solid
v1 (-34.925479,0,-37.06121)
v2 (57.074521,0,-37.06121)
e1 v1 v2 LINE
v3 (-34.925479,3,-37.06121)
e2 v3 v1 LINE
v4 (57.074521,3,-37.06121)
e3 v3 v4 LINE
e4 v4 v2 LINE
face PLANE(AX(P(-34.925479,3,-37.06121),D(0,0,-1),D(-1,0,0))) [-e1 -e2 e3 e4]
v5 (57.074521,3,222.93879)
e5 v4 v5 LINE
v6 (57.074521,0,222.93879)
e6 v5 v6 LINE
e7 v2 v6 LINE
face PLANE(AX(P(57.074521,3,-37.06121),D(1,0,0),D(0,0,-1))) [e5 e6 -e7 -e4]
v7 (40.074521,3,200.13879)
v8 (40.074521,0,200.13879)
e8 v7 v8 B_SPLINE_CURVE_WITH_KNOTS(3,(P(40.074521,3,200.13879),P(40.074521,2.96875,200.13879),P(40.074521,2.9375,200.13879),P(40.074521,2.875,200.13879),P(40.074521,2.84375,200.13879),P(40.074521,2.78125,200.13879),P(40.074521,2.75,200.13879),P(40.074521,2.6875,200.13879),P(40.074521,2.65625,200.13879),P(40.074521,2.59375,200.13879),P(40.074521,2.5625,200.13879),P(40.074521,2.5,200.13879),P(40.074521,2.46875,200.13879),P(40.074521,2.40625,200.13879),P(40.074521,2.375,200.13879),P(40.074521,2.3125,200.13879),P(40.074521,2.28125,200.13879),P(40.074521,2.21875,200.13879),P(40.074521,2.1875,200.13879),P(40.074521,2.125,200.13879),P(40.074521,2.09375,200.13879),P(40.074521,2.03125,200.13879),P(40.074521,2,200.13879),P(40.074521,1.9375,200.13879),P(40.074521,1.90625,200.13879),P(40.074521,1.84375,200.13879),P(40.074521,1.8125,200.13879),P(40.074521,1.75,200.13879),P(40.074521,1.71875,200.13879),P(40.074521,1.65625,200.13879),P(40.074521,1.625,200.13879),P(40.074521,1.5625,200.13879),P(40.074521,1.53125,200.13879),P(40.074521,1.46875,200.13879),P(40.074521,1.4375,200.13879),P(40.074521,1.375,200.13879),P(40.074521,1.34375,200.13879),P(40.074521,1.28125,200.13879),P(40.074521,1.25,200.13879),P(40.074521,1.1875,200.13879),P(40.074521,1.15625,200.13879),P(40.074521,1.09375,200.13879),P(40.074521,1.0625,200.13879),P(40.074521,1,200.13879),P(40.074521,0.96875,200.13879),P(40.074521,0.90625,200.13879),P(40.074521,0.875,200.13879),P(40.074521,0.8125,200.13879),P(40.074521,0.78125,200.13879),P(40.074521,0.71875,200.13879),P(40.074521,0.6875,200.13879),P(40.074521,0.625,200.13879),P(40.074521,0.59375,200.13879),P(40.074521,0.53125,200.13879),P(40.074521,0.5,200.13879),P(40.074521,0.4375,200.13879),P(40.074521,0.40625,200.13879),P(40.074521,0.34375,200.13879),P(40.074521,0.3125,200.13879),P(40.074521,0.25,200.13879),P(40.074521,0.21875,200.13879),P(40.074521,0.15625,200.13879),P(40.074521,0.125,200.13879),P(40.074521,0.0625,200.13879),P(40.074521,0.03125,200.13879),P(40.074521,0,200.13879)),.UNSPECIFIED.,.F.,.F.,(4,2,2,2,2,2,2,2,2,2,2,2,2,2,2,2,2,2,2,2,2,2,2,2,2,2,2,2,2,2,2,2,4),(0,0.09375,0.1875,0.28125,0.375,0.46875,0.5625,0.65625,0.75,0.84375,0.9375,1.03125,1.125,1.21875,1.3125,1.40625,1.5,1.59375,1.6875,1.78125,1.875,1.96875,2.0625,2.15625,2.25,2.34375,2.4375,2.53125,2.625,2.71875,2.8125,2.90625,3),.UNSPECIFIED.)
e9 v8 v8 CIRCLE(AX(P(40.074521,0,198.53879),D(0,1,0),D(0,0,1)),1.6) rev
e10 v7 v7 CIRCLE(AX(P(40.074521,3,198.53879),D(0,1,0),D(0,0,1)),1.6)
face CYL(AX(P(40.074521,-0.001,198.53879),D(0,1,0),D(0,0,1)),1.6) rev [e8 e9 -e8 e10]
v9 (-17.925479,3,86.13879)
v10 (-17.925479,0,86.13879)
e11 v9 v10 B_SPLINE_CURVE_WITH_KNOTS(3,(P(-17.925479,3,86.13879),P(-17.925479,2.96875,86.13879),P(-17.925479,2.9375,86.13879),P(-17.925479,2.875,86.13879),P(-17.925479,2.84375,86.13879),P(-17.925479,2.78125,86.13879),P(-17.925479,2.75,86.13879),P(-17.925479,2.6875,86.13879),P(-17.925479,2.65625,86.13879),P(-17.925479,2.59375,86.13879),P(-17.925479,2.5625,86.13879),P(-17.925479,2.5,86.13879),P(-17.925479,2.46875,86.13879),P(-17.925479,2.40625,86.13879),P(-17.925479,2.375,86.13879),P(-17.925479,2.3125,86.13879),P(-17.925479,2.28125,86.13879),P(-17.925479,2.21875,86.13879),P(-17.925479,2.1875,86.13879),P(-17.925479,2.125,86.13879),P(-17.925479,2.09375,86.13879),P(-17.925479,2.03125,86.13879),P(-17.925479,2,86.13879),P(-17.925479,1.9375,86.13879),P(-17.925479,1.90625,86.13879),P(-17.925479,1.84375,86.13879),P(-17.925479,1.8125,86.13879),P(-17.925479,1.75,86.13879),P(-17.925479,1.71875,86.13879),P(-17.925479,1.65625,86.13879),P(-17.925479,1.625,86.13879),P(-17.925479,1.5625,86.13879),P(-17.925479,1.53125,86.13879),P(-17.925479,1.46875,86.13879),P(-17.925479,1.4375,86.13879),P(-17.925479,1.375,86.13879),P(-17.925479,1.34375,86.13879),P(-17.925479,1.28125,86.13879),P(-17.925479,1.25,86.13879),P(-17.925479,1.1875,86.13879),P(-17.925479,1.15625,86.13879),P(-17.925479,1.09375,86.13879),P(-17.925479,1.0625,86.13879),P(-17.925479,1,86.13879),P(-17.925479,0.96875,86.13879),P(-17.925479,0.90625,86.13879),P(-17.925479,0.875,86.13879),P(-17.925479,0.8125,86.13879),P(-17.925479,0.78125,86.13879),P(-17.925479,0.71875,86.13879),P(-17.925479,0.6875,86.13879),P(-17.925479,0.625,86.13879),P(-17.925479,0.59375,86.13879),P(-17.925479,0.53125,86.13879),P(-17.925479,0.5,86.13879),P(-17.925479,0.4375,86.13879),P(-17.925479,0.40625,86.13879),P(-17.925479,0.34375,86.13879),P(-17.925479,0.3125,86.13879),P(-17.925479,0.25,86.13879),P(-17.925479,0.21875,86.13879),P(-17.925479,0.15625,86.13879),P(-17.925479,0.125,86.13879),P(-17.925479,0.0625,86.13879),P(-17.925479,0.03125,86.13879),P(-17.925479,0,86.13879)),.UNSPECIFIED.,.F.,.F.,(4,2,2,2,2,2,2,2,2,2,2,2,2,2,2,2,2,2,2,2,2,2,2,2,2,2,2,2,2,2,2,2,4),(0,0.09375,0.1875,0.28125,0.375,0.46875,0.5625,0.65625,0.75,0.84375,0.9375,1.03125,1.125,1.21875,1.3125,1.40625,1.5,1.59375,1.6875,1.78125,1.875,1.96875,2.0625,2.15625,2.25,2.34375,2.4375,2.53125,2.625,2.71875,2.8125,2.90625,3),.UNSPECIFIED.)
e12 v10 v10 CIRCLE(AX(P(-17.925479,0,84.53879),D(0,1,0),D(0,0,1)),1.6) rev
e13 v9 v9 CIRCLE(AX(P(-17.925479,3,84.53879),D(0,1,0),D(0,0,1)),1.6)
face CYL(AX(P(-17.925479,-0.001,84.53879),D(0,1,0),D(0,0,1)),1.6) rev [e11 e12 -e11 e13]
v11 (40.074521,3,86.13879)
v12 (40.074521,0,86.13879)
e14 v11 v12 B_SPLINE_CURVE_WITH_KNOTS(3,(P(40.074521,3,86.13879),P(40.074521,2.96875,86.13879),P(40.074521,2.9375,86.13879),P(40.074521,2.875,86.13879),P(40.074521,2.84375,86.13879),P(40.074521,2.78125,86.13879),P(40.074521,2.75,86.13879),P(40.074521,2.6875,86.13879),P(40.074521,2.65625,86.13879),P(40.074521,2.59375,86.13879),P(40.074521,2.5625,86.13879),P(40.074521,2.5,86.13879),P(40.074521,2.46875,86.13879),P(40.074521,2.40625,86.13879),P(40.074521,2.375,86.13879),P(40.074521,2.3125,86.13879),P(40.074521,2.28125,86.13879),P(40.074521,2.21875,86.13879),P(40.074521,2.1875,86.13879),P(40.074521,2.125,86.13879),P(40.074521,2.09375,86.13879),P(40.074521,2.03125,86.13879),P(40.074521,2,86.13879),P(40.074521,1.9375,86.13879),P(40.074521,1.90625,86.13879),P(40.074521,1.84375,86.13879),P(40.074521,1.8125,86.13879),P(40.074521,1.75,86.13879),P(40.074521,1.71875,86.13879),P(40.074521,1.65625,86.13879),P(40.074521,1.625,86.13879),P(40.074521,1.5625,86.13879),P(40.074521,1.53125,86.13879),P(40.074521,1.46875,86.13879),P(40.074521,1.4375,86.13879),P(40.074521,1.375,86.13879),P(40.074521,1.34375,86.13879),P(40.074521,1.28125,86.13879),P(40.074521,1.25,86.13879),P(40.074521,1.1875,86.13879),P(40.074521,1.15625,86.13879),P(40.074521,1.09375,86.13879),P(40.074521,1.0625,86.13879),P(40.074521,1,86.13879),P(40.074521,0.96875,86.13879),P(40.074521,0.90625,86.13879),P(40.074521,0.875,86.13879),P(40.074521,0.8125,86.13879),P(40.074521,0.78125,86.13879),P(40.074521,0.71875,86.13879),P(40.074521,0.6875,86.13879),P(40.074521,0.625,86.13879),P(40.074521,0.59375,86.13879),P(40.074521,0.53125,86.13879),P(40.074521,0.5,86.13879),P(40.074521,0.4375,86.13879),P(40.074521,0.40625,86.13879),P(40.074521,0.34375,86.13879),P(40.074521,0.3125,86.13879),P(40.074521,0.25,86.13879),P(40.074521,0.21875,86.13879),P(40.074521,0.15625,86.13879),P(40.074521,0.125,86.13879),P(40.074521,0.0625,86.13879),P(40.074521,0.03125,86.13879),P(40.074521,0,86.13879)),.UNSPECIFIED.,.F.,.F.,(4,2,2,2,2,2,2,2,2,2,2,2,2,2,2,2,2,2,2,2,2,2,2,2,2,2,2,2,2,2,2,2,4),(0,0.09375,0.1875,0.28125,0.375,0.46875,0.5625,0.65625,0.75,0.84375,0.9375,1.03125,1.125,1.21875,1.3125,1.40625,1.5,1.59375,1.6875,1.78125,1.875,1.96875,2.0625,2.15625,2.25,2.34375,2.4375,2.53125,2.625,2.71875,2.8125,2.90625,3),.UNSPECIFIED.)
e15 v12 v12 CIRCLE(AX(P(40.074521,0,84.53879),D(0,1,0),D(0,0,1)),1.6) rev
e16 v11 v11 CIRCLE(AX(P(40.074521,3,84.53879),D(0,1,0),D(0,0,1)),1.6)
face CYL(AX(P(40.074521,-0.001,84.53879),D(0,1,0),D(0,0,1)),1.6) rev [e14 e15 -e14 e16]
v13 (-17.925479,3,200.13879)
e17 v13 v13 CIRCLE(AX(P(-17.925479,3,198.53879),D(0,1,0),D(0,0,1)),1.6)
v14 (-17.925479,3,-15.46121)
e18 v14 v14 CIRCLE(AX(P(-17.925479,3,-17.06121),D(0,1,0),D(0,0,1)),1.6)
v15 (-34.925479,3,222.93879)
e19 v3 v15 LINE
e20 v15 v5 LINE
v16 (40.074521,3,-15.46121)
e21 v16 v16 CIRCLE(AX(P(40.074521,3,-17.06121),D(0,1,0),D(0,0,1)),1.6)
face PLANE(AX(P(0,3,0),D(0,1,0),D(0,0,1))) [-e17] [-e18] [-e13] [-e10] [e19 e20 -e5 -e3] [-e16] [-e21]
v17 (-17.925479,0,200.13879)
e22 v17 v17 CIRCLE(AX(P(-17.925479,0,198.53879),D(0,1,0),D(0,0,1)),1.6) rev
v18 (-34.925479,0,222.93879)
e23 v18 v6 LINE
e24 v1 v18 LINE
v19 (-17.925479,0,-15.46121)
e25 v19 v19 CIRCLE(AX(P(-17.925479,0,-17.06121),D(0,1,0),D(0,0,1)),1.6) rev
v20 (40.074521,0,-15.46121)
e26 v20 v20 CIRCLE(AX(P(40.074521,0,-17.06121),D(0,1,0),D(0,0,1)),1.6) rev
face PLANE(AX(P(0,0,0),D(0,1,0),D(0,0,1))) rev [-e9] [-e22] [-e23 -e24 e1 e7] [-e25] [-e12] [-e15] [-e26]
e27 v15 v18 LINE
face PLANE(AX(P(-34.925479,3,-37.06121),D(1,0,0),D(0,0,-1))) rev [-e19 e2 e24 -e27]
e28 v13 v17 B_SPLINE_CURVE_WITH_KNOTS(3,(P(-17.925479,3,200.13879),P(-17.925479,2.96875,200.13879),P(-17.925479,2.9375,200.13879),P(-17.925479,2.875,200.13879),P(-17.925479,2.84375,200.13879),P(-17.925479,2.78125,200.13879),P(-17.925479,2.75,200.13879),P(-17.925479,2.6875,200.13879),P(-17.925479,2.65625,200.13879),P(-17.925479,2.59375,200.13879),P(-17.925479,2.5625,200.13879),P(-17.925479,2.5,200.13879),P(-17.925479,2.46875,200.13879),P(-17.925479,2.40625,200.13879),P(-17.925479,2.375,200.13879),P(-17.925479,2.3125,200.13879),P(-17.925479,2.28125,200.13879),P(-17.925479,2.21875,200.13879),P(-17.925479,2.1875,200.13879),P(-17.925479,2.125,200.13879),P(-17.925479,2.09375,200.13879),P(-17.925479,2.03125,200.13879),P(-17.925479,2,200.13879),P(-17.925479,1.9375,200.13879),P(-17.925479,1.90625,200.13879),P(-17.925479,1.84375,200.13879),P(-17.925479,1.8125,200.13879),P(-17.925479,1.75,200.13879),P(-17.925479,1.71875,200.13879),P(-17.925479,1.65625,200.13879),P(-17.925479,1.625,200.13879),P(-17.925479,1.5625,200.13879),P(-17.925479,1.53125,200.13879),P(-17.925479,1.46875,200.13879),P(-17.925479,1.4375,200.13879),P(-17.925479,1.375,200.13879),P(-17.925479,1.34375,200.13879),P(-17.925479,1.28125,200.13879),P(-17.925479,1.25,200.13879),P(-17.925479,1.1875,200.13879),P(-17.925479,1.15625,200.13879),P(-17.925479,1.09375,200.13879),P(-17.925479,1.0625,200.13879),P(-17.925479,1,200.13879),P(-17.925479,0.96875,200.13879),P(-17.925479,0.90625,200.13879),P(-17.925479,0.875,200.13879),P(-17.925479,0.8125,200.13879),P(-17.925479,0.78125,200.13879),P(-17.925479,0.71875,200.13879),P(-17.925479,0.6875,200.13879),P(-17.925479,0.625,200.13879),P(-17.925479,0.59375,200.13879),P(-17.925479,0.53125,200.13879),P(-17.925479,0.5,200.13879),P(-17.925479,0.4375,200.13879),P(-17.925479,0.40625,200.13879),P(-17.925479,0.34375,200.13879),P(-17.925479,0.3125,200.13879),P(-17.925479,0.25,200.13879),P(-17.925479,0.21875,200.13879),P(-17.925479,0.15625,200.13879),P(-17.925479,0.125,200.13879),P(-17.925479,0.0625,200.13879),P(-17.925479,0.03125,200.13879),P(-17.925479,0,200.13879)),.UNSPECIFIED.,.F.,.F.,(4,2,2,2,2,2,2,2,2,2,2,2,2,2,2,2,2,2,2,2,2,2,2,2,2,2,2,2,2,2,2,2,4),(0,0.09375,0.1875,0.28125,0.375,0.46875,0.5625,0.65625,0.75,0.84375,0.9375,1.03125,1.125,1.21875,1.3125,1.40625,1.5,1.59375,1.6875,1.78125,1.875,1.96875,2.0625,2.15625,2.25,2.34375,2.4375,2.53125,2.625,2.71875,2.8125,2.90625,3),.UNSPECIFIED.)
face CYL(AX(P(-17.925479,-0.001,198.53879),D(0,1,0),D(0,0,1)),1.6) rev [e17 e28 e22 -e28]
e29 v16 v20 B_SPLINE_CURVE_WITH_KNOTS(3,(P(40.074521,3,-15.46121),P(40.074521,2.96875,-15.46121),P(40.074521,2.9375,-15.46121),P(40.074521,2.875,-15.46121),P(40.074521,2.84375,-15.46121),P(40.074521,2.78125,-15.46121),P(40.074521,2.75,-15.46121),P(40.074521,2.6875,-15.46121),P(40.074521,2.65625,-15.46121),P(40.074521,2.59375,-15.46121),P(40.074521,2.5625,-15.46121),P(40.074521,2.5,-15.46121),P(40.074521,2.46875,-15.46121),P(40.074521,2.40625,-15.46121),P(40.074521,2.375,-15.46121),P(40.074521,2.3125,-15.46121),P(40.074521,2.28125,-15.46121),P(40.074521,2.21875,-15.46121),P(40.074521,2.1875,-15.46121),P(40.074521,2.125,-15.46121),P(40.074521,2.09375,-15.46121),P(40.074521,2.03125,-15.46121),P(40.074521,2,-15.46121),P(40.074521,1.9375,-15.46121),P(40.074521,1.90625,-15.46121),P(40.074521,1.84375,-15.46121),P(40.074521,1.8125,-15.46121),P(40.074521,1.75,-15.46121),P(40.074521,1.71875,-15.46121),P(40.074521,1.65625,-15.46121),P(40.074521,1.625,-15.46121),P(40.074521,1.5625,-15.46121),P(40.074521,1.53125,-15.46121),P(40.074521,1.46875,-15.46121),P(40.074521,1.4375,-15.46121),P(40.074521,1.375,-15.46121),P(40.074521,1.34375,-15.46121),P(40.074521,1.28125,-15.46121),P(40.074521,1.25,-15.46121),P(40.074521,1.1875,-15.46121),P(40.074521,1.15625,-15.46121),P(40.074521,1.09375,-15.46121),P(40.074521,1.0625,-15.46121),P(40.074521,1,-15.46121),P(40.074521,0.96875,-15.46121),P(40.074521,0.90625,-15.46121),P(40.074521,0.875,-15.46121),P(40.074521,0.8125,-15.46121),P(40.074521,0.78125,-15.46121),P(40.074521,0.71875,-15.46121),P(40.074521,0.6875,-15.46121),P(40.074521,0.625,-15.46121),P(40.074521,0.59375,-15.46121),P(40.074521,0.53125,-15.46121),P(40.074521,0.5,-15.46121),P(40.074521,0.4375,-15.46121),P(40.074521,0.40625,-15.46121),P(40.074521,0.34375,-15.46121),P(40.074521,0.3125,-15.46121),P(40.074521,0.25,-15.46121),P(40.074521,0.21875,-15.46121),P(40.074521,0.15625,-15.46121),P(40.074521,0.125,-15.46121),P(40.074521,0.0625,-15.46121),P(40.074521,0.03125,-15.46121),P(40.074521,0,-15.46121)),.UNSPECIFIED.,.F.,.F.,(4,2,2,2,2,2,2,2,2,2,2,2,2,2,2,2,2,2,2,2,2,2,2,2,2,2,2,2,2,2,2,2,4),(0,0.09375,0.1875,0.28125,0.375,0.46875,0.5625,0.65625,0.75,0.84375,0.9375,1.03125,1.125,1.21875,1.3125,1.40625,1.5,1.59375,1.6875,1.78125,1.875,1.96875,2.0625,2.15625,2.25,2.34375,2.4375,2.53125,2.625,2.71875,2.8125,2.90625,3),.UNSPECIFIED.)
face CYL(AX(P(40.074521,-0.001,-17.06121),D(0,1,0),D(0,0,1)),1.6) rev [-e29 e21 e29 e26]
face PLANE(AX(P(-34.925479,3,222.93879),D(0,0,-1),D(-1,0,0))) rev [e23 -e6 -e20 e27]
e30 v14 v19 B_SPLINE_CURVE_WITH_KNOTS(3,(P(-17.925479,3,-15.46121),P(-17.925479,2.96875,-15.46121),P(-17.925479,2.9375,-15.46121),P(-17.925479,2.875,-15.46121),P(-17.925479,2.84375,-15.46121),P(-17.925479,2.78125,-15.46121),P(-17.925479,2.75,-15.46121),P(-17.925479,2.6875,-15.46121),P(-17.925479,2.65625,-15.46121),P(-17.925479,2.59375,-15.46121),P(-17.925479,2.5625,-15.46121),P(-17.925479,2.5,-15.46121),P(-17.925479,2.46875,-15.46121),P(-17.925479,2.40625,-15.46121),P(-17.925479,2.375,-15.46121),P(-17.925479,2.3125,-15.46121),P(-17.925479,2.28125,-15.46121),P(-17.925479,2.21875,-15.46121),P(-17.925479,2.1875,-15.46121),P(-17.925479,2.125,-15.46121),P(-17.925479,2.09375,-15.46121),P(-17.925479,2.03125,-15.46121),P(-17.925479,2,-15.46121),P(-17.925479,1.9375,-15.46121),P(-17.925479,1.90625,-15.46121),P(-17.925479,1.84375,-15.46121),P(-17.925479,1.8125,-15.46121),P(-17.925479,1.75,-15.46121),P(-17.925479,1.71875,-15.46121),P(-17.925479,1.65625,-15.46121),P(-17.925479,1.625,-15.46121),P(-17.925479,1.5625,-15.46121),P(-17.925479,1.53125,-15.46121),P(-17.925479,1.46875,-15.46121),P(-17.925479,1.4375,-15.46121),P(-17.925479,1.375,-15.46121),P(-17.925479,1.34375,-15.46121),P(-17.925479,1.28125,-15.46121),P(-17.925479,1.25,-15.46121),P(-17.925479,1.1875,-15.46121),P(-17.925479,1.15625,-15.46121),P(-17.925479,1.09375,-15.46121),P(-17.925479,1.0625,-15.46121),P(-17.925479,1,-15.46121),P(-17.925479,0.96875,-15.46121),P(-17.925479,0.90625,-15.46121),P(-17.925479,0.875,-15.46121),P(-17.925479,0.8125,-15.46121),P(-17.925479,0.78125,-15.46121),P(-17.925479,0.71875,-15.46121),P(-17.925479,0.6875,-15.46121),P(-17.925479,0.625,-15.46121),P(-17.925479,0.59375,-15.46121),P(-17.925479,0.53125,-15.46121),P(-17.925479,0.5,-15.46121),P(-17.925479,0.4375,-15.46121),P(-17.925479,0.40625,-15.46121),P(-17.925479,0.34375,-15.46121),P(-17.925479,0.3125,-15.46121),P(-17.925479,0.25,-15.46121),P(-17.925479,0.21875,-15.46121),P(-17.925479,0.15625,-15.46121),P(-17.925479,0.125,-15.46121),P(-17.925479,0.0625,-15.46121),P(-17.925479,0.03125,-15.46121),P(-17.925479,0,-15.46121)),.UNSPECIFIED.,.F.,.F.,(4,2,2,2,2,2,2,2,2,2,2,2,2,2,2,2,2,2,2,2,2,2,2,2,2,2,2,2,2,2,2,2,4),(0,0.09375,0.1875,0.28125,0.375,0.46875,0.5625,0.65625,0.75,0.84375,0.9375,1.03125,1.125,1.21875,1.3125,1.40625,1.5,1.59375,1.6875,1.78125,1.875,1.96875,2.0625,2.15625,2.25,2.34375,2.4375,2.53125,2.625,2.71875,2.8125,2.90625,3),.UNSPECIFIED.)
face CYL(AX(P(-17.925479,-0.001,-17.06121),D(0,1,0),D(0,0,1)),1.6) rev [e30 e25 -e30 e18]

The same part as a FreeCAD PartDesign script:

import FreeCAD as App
import Part
import Sketcher
from FreeCAD import Vector


def add_polygon(sketch, points):
    """Adds a closed chain of lines whose ends are joined by coincident constraints."""
    first, n = sketch.GeometryCount, len(points)
    for a, b in zip(points, points[1:] + points[:1]):
        sketch.addGeometry(Part.LineSegment(App.Vector(*a, 0), App.Vector(*b, 0)), False)
    for i in range(n):
        sketch.addConstraint(Sketcher.Constraint("Coincident", first + i, 2, first + (i + 1) % n, 1))

doc = App.newDocument("Part")
params = doc.addObject("Spreadsheet::Sheet", "Params")
for row, (alias, value) in enumerate([
    ("sketch1_width", "92 mm"),
    ("sketch1_height", "260 mm"),
    ("pad1_length", "3 mm"),
    ("sketch2_diameter", "3.2 mm"),
    ("sketch3_diameter", "3.2 mm"),
    ("sketch4_diameter", "3.2 mm"),
    ("sketch5_diameter", "3.2 mm"),
    ("sketch6_diameter", "3.2 mm"),
    ("sketch7_diameter", "3.2 mm"),
], start=1):
    params.set(f"A{row}", alias)
    params.set(f"B{row}", "=" + value)
    params.setAlias(f"B{row}", alias)

body = doc.addObject("PartDesign::Body", "Body")

# Sketch on XZ plane
sketch1 = doc.addObject("Sketcher::SketchObject", "Sketch")
body.addObject(sketch1)
sketch1.AttachmentSupport = (doc.XZ_Plane, [""])
sketch1.MapMode = "FlatFace"
add_polygon(sketch1, [(-34.925479, -37.06121), (-34.925479, 222.93879), (57.074521, 222.93879), (57.074521, -37.06121)])  # lines 0-3
sketch1.addConstraint([
    Sketcher.Constraint("Vertical", 0),
    Sketcher.Constraint("Horizontal", 1),
    Sketcher.Constraint("Vertical", 2),
    Sketcher.Constraint("Horizontal", 3),
    Sketcher.Constraint("DistanceX", 1, 1, 1, 2, 92.0),
    Sketcher.Constraint("DistanceY", 0, 1, 0, 2, 260.0),
    Sketcher.Constraint("DistanceX", 0, 2, -1, 1, 34.925479),
    Sketcher.Constraint("DistanceY", -1, 1, 0, 2, 222.93879),
])
sketch1.setExpression("Constraints[8]", "Params.sketch1_width")
sketch1.setExpression("Constraints[9]", "Params.sketch1_height")
pad1 = doc.addObject("PartDesign::Pad", "Pad")
body.addObject(pad1)
pad1.Profile = sketch1
pad1.setExpression("Length", "Params.pad1_length")
pad1.Reversed = True

# Sketch on XZ plane
sketch2 = doc.addObject("Sketcher::SketchObject", "Sketch001")
body.addObject(sketch2)
sketch2.AttachmentSupport = (doc.XZ_Plane, [""])
sketch2.MapMode = "FlatFace"
sketch2.AttachmentOffset = App.Placement(Vector(0, 0, -3), App.Rotation())
sketch2.addGeometry(Part.Circle(Vector(-17.925479, 198.53879, 0), Vector(0, 0, 1), 1.6), False)
sketch2.addConstraint([
    Sketcher.Constraint("Diameter", 0, 3.2),
    Sketcher.Constraint("DistanceX", 0, 3, -1, 1, 17.925479),
    Sketcher.Constraint("DistanceY", -1, 1, 0, 3, 198.53879),
])
sketch2.setExpression("Constraints[0]", "Params.sketch2_diameter")
pocket1 = doc.addObject("PartDesign::Pocket", "Pocket")
body.addObject(pocket1)
pocket1.Profile = sketch2
pocket1.Type = "UpToFirst"
pocket1.Reversed = True

# Sketch on XZ plane
sketch3 = doc.addObject("Sketcher::SketchObject", "Sketch002")
body.addObject(sketch3)
sketch3.AttachmentSupport = (doc.XZ_Plane, [""])
sketch3.MapMode = "FlatFace"
sketch3.AttachmentOffset = App.Placement(Vector(0, 0, -3), App.Rotation())
sketch3.addGeometry(Part.Circle(Vector(40.074521, 198.53879, 0), Vector(0, 0, 1), 1.6), False)
sketch3.addConstraint([
    Sketcher.Constraint("Diameter", 0, 3.2),
    Sketcher.Constraint("DistanceX", -1, 1, 0, 3, 40.074521),
    Sketcher.Constraint("DistanceY", -1, 1, 0, 3, 198.53879),
])
sketch3.setExpression("Constraints[0]", "Params.sketch3_diameter")
pocket2 = doc.addObject("PartDesign::Pocket", "Pocket001")
body.addObject(pocket2)
pocket2.Profile = sketch3
pocket2.Type = "UpToFirst"
pocket2.Reversed = True

# Sketch on XZ plane
sketch4 = doc.addObject("Sketcher::SketchObject", "Sketch003")
body.addObject(sketch4)
sketch4.AttachmentSupport = (doc.XZ_Plane, [""])
sketch4.MapMode = "FlatFace"
sketch4.AttachmentOffset = App.Placement(Vector(0, 0, -3), App.Rotation())
sketch4.addGeometry(Part.Circle(Vector(-17.925479, 84.53879, 0), Vector(0, 0, 1), 1.6), False)
sketch4.addConstraint([
    Sketcher.Constraint("Diameter", 0, 3.2),
    Sketcher.Constraint("DistanceX", 0, 3, -1, 1, 17.925479),
    Sketcher.Constraint("DistanceY", -1, 1, 0, 3, 84.53879),
])
sketch4.setExpression("Constraints[0]", "Params.sketch4_diameter")
pocket3 = doc.addObject("PartDesign::Pocket", "Pocket002")
body.addObject(pocket3)
pocket3.Profile = sketch4
pocket3.Type = "UpToFirst"
pocket3.Reversed = True

# Sketch on XZ plane
sketch5 = doc.addObject("Sketcher::SketchObject", "Sketch004")
body.addObject(sketch5)
sketch5.AttachmentSupport = (doc.XZ_Plane, [""])
sketch5.MapMode = "FlatFace"
sketch5.AttachmentOffset = App.Placement(Vector(0, 0, -3), App.Rotation())
sketch5.addGeometry(Part.Circle(Vector(40.074521, 84.53879, 0), Vector(0, 0, 1), 1.6), False)
sketch5.addConstraint([
    Sketcher.Constraint("Diameter", 0, 3.2),
    Sketcher.Constraint("DistanceX", -1, 1, 0, 3, 40.074521),
    Sketcher.Constraint("DistanceY", -1, 1, 0, 3, 84.53879),
])
sketch5.setExpression("Constraints[0]", "Params.sketch5_diameter")
pocket4 = doc.addObject("PartDesign::Pocket", "Pocket003")
body.addObject(pocket4)
pocket4.Profile = sketch5
pocket4.Type = "UpToFirst"
pocket4.Reversed = True

# Sketch on XZ plane
sketch6 = doc.addObject("Sketcher::SketchObject", "Sketch005")
body.addObject(sketch6)
sketch6.AttachmentSupport = (doc.XZ_Plane, [""])
sketch6.MapMode = "FlatFace"
sketch6.AttachmentOffset = App.Placement(Vector(0, 0, -3), App.Rotation())
sketch6.addGeometry(Part.Circle(Vector(-17.925479, -17.06121, 0), Vector(0, 0, 1), 1.6), False)
sketch6.addConstraint([
    Sketcher.Constraint("Diameter", 0, 3.2),
    Sketcher.Constraint("DistanceX", 0, 3, -1, 1, 17.925479),
    Sketcher.Constraint("DistanceY", 0, 3, -1, 1, 17.06121),
])
sketch6.setExpression("Constraints[0]", "Params.sketch6_diameter")
pocket5 = doc.addObject("PartDesign::Pocket", "Pocket004")
body.addObject(pocket5)
pocket5.Profile = sketch6
pocket5.Type = "UpToFirst"
pocket5.Reversed = True

# Sketch on XZ plane
sketch7 = doc.addObject("Sketcher::SketchObject", "Sketch006")
body.addObject(sketch7)
sketch7.AttachmentSupport = (doc.XZ_Plane, [""])
sketch7.MapMode = "FlatFace"
sketch7.AttachmentOffset = App.Placement(Vector(0, 0, -3), App.Rotation())
sketch7.addGeometry(Part.Circle(Vector(40.074521, -17.06121, 0), Vector(0, 0, 1), 1.6), False)
sketch7.addConstraint([
    Sketcher.Constraint("Diameter", 0, 3.2),
    Sketcher.Constraint("DistanceX", -1, 1, 0, 3, 40.074521),
    Sketcher.Constraint("DistanceY", 0, 3, -1, 1, 17.06121),
])
sketch7.setExpression("Constraints[0]", "Params.sketch7_diameter")
pocket6 = doc.addObject("PartDesign::Pocket", "Pocket005")
body.addObject(pocket6)
pocket6.Profile = sketch7
pocket6.Type = "UpToFirst"
pocket6.Reversed = True

doc.recompute()
